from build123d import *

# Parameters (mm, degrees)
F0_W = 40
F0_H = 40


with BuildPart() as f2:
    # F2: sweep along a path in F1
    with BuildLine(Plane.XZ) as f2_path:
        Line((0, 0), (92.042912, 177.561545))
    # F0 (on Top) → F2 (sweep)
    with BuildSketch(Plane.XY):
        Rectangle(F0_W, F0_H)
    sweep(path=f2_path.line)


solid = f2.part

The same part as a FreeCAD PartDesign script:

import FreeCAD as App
import Part
import Sketcher
from FreeCAD import Vector
Q = App.Units.Quantity

doc = App.newDocument("Part")
body = doc.addObject("PartDesign::Body", "Body")

# Sketch on XY plane
sketch1 = doc.addObject("Sketcher::SketchObject", "Sketch")
body.addObject(sketch1)
sketch1.AttachmentSupport = (doc.XY_Plane, [""])
sketch1.MapMode = "FlatFace"
sketch1.addGeometry(Part.LineSegment(Vector(-20, 20, 0), Vector(-20, -20, 0)), False)
sketch1.addGeometry(Part.LineSegment(Vector(-20, -20, 0), Vector(20, -20, 0)), False)
sketch1.addGeometry(Part.LineSegment(Vector(20, -20, 0), Vector(20, 20, 0)), False)
sketch1.addGeometry(Part.LineSegment(Vector(20, 20, 0), Vector(-20, 20, 0)), False)
sketch1.addConstraint(Sketcher.Constraint("Coincident", 0, 2, 1, 1))
sketch1.addConstraint(Sketcher.Constraint("Coincident", 1, 2, 2, 1))
sketch1.addConstraint(Sketcher.Constraint("Coincident", 2, 2, 3, 1))
sketch1.addConstraint(Sketcher.Constraint("Coincident", 3, 2, 0, 1))
sketch1.addConstraint(Sketcher.Constraint("Vertical", 0))
sketch1.addConstraint(Sketcher.Constraint("Horizontal", 1))
sketch1.addConstraint(Sketcher.Constraint("Vertical", 2))
sketch1.addConstraint(Sketcher.Constraint("Horizontal", 3))
sketch1.addConstraint(Sketcher.Constraint("Symmetric", 0, 2, 2, 2, -1, 1))
sketch1.addConstraint(Sketcher.Constraint("Equal", 3, 0))
sketch1.addConstraint(Sketcher.Constraint("DistanceX", 1, 1, 1, 2, Q("40 mm")))

# Sketch on an angled plane
sketch2 = doc.addObject("Sketcher::SketchObject", "Sketch001")
body.addObject(sketch2)
sketch2.Placement = App.Placement(Vector(0, 0, 0), App.Rotation(Vector(0.460214561, 0, 0.887807726), Vector(0, 1.000000001, 0), Vector(-0.887807726, 0, 0.460214561), "ZXY"))
sketch2.addGeometry(Part.LineSegment(Vector(0, 0, 0), Vector(200, 0, 0)), False)
sketch2.addConstraint(Sketcher.Constraint("Horizontal", 0))
sketch2.addConstraint(Sketcher.Constraint("Coincident", 0, 1, -1, 1))
sketch2.addConstraint(Sketcher.Constraint("DistanceX", 0, 1, 0, 2, Q("200 mm")))
doc.recompute()

additivepipe = doc.addObject("PartDesign::AdditivePipe", "AdditivePipe")
body.addObject(additivepipe)
additivepipe.Profile = sketch1
additivepipe.Spine = (sketch2, ["Edge1"])

doc.recompute()
